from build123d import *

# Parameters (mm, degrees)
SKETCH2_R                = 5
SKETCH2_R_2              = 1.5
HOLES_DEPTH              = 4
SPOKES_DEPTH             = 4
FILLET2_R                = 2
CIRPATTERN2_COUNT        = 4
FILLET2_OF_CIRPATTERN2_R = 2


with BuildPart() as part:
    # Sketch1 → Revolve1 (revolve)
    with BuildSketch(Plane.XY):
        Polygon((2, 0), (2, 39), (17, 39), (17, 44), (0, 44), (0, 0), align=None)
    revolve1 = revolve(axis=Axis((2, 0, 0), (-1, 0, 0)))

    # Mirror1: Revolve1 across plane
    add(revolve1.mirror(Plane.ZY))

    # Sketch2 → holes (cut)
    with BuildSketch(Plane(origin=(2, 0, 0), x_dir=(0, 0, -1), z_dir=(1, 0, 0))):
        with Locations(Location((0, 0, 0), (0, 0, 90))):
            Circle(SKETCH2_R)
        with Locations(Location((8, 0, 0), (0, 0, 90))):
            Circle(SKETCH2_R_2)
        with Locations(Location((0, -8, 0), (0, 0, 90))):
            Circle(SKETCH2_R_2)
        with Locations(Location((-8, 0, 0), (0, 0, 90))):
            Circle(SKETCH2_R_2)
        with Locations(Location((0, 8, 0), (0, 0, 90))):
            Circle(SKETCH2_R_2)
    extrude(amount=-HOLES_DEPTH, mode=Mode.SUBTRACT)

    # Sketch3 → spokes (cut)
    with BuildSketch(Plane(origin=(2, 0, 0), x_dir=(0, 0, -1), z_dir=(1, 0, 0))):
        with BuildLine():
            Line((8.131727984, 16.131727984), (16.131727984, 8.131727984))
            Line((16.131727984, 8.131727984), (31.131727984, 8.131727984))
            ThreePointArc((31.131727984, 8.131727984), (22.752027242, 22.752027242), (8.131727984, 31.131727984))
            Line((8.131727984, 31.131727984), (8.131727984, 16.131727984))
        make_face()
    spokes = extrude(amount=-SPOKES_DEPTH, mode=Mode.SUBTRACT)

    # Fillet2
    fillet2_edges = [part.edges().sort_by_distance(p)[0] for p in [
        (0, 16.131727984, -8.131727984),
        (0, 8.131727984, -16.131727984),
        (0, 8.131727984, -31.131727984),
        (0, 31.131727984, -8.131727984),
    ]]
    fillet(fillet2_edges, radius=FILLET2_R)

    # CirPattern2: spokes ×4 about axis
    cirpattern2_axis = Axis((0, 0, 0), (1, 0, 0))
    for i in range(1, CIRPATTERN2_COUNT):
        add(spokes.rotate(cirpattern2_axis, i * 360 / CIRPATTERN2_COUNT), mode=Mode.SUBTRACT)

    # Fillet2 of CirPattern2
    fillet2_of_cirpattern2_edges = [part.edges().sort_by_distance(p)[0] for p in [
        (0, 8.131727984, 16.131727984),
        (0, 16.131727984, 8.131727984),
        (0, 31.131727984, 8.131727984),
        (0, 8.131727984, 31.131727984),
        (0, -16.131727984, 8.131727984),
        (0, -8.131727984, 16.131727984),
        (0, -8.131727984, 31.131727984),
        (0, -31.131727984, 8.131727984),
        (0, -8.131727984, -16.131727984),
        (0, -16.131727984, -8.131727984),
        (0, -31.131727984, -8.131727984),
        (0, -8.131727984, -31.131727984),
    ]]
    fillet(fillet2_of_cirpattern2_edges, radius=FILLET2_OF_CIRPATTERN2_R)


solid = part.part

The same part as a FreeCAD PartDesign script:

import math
import FreeCAD as App
import Part
import Sketcher
Q = App.Units.Quantity


def edges_at(feature, points):
    """Names of the edges that pass closest to the given points."""
    edges = feature.Shape.Edges
    near = lambda p: min(range(len(edges)), key=lambda i: edges[i].distToShape(Part.Vertex(*p))[0])
    return sorted({f"Edge{near(p) + 1}" for p in points})


def add_polygon(sketch, points):
    """Adds a closed chain of lines whose ends are joined by coincident constraints."""
    first, n = sketch.GeometryCount, len(points)
    for a, b in zip(points, points[1:] + points[:1]):
        sketch.addGeometry(Part.LineSegment(App.Vector(*a, 0), App.Vector(*b, 0)), False)
    for i in range(n):
        sketch.addConstraint(Sketcher.Constraint("Coincident", first + i, 2, first + (i + 1) % n, 1))

doc = App.newDocument("Part")
body = doc.addObject("PartDesign::Body", "Body")

# Sketch on XY plane
sketch1 = body.newObject("Sketcher::SketchObject", "Sketch")
sketch1.AttachmentSupport = (doc.getObject("XY_Plane"), [""])
sketch1.MapMode = "FlatFace"
add_polygon(sketch1, [(2, 0), (2, 39), (17, 39), (17, 44), (0, 44), (0, 0)])  # lines 0-5
sketch1.addConstraint([
    Sketcher.Constraint("Vertical", 0),
    Sketcher.Constraint("Horizontal", 1),
    Sketcher.Constraint("Vertical", 2),
    Sketcher.Constraint("Horizontal", 3),
    Sketcher.Constraint("Vertical", 4),
    Sketcher.Constraint("Horizontal", 5),
    Sketcher.Constraint("Coincident", 4, 2, -1, 1),
    Sketcher.Constraint("DistanceX", 1, 1, 1, 2, 15.0),
    Sketcher.Constraint("DistanceX", 3, 2, 3, 1, 17.0),
    Sketcher.Constraint("DistanceY", 0, 1, 0, 2, 39.0),
    Sketcher.Constraint("DistanceY", 2, 1, 2, 2, 5.0),
])
revolution = body.newObject("PartDesign::Revolution", "Revolution")
revolution.Profile = sketch1
revolution.ReferenceAxis = (sketch1, ["H_Axis"])
revolution.Angle = 360
doc.recompute()

mirrored = body.newObject("PartDesign::Mirrored", "Mirrored")
mirrored.Originals = [revolution]
mirrored.MirrorPlane = (doc.getObject("YZ_Plane"), [""])
body.Tip = mirrored

# Sketch on YZ plane
sketch2 = body.newObject("Sketcher::SketchObject", "Sketch001")
sketch2.AttachmentSupport = (doc.getObject("YZ_Plane"), [""])
sketch2.MapMode = "FlatFace"
sketch2.AttachmentOffset = App.Placement(App.Vector(0, 0, 2), App.Rotation())
sketch2.addGeometry([
    Part.Circle(App.Vector(0, 0, 0), App.Vector(0, 0, 1), 5),  # 0
    Part.Circle(App.Vector(0, -8, 0), App.Vector(0, 0, 1), 1.5),  # 1
    Part.Circle(App.Vector(-8, 0, 0), App.Vector(0, 0, 1), 1.5),  # 2
    Part.Circle(App.Vector(0, 8, 0), App.Vector(0, 0, 1), 1.5),  # 3
    Part.Circle(App.Vector(8, 0, 0), App.Vector(0, 0, 1), 1.5),  # 4
], False)
sketch2.addConstraint([
    Sketcher.Constraint("Coincident", 0, 3, -1, 1),
    Sketcher.Constraint("Equal", 1, 2),
    Sketcher.Constraint("Equal", 2, 3),
    Sketcher.Constraint("Equal", 3, 4),
    Sketcher.Constraint("Symmetric", 1, 3, 3, 3, -1, 1),
    Sketcher.Constraint("Symmetric", 2, 3, 4, 3, -1, 1),
    Sketcher.Constraint("PointOnObject", 1, 3, -2),
    Sketcher.Constraint("PointOnObject", 2, 3, -1),
    Sketcher.Constraint("Diameter", 0, 10.0),
    Sketcher.Constraint("Diameter", 1, 3.0),
    Sketcher.Constraint("DistanceY", 1, 3, -1, 1, 8.0),
    Sketcher.Constraint("DistanceX", 2, 3, -1, 1, 8.0),
])
pocket1 = body.newObject("PartDesign::Pocket", "Pocket")
pocket1.Profile = sketch2
pocket1.Length = 4

# Sketch on YZ plane
sketch3 = body.newObject("Sketcher::SketchObject", "Sketch002")
sketch3.AttachmentSupport = (doc.getObject("YZ_Plane"), [""])
sketch3.MapMode = "FlatFace"
sketch3.AttachmentOffset = App.Placement(App.Vector(0, 0, 2), App.Rotation())
sketch3.addGeometry([
    Part.LineSegment(App.Vector(16.131728, -8.131728, 0), App.Vector(8.131728, -16.131728, 0)),
    Part.LineSegment(App.Vector(8.131728, -16.131728, 0), App.Vector(8.131728, -31.131728, 0)),
    Part.ArcOfCircle(Part.Circle(App.Vector(0, 0, 0), App.Vector(0, 0, 1), 32.176226), math.radians(-75.361193), math.radians(-14.638807)),
    Part.LineSegment(App.Vector(31.131728, -8.131728, 0), App.Vector(16.131728, -8.131728, 0)),
], False)
sketch3.addConstraint([
    Sketcher.Constraint("Coincident", 0, 2, 1, 1),
    Sketcher.Constraint("Coincident", 1, 2, 2, 1),
    Sketcher.Constraint("Coincident", 2, 2, 3, 1),
    Sketcher.Constraint("Coincident", 3, 2, 0, 1),
    Sketcher.Constraint("Vertical", 1),
    Sketcher.Constraint("Horizontal", 3),
    Sketcher.Constraint("Coincident", 2, 3, -1, 1),
    Sketcher.Constraint("Equal", 3, 1),
    Sketcher.Constraint("DistanceX", 3, 2, 3, 1, 15.0),
    Sketcher.Constraint("Angle", 0, Q("-135 deg")),
    Sketcher.Constraint("DistanceX", 0, 2, 2, 2, 23.0),
    Sketcher.Constraint("Radius", 2, 32.176226),
])
pocket2 = body.newObject("PartDesign::Pocket", "Pocket001")
pocket2.Profile = sketch3
pocket2.Length = 4
doc.recompute()

fillet = body.newObject("PartDesign::Fillet", "Fillet")
fillet.Base = (pocket2, edges_at(pocket2, [
    (0, 16.132, -8.132),
    (0, 8.132, -16.132),
    (0, 8.132, -31.132),
    (0, 31.132, -8.132),
]))
fillet.Radius = 2
doc.recompute()

polarpattern = body.newObject("PartDesign::PolarPattern", "PolarPattern")
polarpattern.Originals = [pocket2]
polarpattern.Axis = (doc.getObject("X_Axis"), [""])
polarpattern.Angle = 360
polarpattern.Occurrences = 4
body.Tip = polarpattern
doc.recompute()

fillet2 = body.newObject("PartDesign::Fillet", "Fillet001")
fillet2.Base = (polarpattern, edges_at(polarpattern, [
    (0, 8.132, 16.132),
    (0, 16.132, 8.132),
    (0, 31.132, 8.132),
    (0, 8.132, 31.132),
    (0, -16.132, 8.132),
    (0, -8.132, 16.132),
    (0, -8.132, 31.132),
    (0, -31.132, 8.132),
    (0, -8.132, -16.132),
    (0, -16.132, -8.132),
    (0, -31.132, -8.132),
    (0, -8.132, -31.132),
]))
fillet2.Radius = 2

doc.recompute()
